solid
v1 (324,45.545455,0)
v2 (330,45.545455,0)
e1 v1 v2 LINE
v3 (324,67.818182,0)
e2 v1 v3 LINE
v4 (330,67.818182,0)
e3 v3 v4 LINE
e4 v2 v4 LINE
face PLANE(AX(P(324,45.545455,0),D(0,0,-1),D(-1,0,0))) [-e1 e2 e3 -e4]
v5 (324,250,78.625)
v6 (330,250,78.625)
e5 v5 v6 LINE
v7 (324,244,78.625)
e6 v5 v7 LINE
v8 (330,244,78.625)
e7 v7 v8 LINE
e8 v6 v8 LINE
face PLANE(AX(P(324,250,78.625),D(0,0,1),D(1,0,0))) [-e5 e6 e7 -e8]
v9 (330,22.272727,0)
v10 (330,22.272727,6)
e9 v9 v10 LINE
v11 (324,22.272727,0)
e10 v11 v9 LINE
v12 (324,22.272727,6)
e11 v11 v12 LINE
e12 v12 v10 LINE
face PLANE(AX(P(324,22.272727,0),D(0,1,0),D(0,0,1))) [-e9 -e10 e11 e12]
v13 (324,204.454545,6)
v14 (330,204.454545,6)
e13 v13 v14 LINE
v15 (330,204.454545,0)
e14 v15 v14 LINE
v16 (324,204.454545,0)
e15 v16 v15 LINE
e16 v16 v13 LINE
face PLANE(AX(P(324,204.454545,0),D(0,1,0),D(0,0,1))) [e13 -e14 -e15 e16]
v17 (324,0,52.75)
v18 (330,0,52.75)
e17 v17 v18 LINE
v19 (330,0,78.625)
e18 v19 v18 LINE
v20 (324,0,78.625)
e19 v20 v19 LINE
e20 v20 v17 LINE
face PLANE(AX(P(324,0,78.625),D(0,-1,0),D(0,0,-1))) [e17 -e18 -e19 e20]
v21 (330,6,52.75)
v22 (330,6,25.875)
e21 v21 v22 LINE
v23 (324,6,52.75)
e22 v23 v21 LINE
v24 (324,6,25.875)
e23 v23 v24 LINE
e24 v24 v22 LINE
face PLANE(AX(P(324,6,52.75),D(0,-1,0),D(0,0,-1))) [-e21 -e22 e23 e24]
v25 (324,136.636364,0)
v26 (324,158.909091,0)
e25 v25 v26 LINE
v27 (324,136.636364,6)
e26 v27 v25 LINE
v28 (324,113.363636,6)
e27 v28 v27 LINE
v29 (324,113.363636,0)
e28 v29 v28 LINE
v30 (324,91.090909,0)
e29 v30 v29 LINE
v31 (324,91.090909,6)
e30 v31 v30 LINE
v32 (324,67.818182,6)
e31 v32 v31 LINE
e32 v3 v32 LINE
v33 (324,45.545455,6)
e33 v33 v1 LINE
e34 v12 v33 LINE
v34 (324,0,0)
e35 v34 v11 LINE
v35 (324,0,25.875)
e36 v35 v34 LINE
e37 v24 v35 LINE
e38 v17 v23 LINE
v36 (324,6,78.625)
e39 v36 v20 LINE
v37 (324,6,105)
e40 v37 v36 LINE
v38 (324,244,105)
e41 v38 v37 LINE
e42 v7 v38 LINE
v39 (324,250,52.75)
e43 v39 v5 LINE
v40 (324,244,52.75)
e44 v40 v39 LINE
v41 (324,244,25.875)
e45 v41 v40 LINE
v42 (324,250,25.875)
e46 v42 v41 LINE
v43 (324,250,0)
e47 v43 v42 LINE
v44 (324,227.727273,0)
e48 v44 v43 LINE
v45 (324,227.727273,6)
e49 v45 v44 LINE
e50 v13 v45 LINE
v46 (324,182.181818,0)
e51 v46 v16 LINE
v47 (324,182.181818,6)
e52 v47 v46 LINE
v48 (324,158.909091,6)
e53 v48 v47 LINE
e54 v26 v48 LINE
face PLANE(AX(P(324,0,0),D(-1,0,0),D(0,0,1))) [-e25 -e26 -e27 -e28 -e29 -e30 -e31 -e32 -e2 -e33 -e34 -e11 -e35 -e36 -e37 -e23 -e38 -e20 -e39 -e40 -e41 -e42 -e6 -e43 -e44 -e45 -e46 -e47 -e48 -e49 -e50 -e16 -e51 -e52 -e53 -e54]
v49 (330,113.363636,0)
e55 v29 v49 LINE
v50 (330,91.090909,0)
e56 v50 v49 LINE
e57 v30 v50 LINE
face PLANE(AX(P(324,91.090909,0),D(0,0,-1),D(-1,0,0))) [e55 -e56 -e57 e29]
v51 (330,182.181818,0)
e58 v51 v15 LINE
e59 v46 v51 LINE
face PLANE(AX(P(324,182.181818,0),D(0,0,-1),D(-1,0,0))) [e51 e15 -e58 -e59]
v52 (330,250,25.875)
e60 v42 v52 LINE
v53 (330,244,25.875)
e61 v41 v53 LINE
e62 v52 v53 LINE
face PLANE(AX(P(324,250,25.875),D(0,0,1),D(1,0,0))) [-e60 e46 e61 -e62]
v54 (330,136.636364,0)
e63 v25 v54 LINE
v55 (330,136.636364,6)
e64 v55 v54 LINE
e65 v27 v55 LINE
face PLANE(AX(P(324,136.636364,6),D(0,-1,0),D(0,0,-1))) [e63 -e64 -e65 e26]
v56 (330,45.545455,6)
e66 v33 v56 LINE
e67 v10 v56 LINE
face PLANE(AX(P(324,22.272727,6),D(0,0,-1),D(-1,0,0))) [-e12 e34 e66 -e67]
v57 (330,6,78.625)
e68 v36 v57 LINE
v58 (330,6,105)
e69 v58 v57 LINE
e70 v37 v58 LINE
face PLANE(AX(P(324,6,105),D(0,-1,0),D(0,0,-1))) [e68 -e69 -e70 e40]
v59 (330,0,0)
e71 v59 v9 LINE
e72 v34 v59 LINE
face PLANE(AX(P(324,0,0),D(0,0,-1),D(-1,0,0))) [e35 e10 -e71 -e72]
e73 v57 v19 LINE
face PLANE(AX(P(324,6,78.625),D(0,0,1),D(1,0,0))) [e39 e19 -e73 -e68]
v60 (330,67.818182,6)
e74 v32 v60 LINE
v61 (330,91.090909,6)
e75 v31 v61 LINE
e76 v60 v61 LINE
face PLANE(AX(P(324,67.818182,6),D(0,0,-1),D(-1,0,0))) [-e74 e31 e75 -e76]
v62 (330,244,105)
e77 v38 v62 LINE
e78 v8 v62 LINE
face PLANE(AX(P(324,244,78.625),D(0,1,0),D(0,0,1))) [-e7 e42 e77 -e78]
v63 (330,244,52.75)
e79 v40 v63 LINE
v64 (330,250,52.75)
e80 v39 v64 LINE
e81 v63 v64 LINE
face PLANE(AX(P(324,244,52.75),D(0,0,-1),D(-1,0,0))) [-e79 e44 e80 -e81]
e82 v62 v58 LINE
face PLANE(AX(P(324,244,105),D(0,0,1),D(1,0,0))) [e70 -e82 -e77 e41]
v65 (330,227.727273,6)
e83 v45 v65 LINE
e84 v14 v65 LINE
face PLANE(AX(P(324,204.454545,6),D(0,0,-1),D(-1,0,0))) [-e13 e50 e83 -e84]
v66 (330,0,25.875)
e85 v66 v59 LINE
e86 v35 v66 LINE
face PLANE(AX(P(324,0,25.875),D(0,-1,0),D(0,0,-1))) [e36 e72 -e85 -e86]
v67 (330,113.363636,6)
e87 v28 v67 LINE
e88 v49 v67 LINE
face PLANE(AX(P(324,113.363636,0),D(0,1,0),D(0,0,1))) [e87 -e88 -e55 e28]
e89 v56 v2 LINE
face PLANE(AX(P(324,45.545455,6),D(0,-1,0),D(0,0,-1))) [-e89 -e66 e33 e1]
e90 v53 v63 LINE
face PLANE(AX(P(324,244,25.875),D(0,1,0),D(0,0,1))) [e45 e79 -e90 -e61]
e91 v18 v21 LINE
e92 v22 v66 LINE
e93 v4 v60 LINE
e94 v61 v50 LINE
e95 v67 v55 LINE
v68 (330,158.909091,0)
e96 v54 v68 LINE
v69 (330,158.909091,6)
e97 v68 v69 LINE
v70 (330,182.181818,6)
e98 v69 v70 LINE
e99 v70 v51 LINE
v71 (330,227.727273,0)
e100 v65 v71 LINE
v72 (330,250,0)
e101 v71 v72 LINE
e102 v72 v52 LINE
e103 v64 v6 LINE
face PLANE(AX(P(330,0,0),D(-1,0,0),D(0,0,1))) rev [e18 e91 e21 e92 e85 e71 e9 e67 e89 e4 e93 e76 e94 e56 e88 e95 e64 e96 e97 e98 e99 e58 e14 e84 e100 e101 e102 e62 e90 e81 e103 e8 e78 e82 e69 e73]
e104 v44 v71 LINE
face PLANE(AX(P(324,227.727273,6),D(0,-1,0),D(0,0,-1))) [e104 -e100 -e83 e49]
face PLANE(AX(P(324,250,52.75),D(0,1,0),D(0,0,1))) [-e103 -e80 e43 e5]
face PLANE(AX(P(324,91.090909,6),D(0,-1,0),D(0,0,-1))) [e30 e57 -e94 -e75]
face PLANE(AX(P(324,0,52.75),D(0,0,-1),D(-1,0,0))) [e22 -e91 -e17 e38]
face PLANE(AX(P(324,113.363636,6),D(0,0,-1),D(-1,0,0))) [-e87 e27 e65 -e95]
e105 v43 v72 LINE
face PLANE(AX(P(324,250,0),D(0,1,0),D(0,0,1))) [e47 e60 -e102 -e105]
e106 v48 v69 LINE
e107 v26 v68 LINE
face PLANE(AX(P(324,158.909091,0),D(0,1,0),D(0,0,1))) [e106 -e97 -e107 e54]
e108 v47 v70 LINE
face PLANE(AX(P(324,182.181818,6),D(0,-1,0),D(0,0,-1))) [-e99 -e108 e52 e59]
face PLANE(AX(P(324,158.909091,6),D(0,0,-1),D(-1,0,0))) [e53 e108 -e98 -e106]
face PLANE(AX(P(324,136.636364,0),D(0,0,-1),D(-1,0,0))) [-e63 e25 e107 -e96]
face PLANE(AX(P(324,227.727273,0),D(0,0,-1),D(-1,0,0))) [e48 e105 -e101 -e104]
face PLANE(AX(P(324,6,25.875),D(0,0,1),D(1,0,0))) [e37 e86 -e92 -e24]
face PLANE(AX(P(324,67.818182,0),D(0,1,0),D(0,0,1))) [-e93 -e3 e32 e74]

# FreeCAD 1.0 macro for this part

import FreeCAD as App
import Part
import Sketcher

V = App.Vector
Q = App.Units.Quantity

doc = App.newDocument("Part")
body = doc.addObject("PartDesign::Body", "Body")

# Sketch on YZ plane
sketch1 = body.newObject("Sketcher::SketchObject", "Sketch")
sketch1.AttachmentSupport = (doc.getObject("YZ_Plane"), [""])
sketch1.MapMode = "FlatFace"
sketch1.AttachmentOffset = App.Placement(V(0, 0, 330), App.Rotation())
sketch1.addGeometry([
    Part.LineSegment(V(244, 52.75, 0), V(250, 52.75, 0)),  # 0
    Part.LineSegment(V(250, 52.75, 0), V(250, 78.625, 0)),  # 1
    Part.LineSegment(V(250, 78.625, 0), V(244, 78.625, 0)),  # 2
    Part.LineSegment(V(244, 78.625, 0), V(244, 105, 0)),  # 3
    Part.LineSegment(V(244, 105, 0), V(6, 105, 0)),  # 4
    Part.LineSegment(V(6, 105, 0), V(6, 78.625, 0)),  # 5
    Part.LineSegment(V(6, 78.625, 0), V(0, 78.625, 0)),  # 6
    Part.LineSegment(V(0, 78.625, 0), V(0, 52.75, 0)),  # 7
    Part.LineSegment(V(0, 52.75, 0), V(6, 52.75, 0)),  # 8
    Part.LineSegment(V(6, 52.75, 0), V(6, 25.875, 0)),  # 9
    Part.LineSegment(V(6, 25.875, 0), V(0, 25.875, 0)),  # 10
    Part.LineSegment(V(0, 25.875, 0), V(0, 0, 0)),  # 11
    Part.LineSegment(V(0, 0, 0), V(22.272727, 0, 0)),  # 12
    Part.LineSegment(V(22.272727, 0, 0), V(22.272727, 6, 0)),  # 13
    Part.LineSegment(V(22.272727, 6, 0), V(45.545455, 6, 0)),  # 14
    Part.LineSegment(V(45.545455, 6, 0), V(45.545455, 0, 0)),  # 15
    Part.LineSegment(V(45.545455, 0, 0), V(67.818182, 0, 0)),  # 16
    Part.LineSegment(V(67.818182, 0, 0), V(67.818182, 6, 0)),  # 17
    Part.LineSegment(V(67.818182, 6, 0), V(91.090909, 6, 0)),  # 18
    Part.LineSegment(V(91.090909, 6, 0), V(91.090909, 0, 0)),  # 19
    Part.LineSegment(V(91.090909, 0, 0), V(113.363636, 0, 0)),  # 20
    Part.LineSegment(V(113.363636, 0, 0), V(113.363636, 6, 0)),  # 21
    Part.LineSegment(V(113.363636, 6, 0), V(136.636364, 6, 0)),  # 22
    Part.LineSegment(V(136.636364, 6, 0), V(136.636364, 0, 0)),  # 23
    Part.LineSegment(V(136.636364, 0, 0), V(158.909091, 0, 0)),  # 24
    Part.LineSegment(V(158.909091, 0, 0), V(158.909091, 6, 0)),  # 25
    Part.LineSegment(V(158.909091, 6, 0), V(182.181818, 6, 0)),  # 26
    Part.LineSegment(V(182.181818, 6, 0), V(182.181818, 0, 0)),  # 27
    Part.LineSegment(V(182.181818, 0, 0), V(204.454545, 0, 0)),  # 28
    Part.LineSegment(V(204.454545, 0, 0), V(204.454545, 6, 0)),  # 29
    Part.LineSegment(V(204.454545, 6, 0), V(227.727273, 6, 0)),  # 30
    Part.LineSegment(V(227.727273, 6, 0), V(227.727273, 0, 0)),  # 31
    Part.LineSegment(V(227.727273, 0, 0), V(250, 0, 0)),  # 32
    Part.LineSegment(V(250, 0, 0), V(250, 25.875, 0)),  # 33
    Part.LineSegment(V(250, 25.875, 0), V(244, 25.875, 0)),  # 34
    Part.LineSegment(V(244, 25.875, 0), V(244, 52.75, 0)),  # 35
], False)
sketch1.addConstraint([
    Sketcher.Constraint("Coincident", 0, 2, 1, 1),
    Sketcher.Constraint("Coincident", 1, 2, 2, 1),
    Sketcher.Constraint("Coincident", 2, 2, 3, 1),
    Sketcher.Constraint("Coincident", 3, 2, 4, 1),
    Sketcher.Constraint("Coincident", 4, 2, 5, 1),
    Sketcher.Constraint("Coincident", 5, 2, 6, 1),
    Sketcher.Constraint("Coincident", 6, 2, 7, 1),
    Sketcher.Constraint("Coincident", 7, 2, 8, 1),
    Sketcher.Constraint("Coincident", 8, 2, 9, 1),
    Sketcher.Constraint("Coincident", 9, 2, 10, 1),
    Sketcher.Constraint("Coincident", 10, 2, 11, 1),
    Sketcher.Constraint("Coincident", 11, 2, 12, 1),
    Sketcher.Constraint("Coincident", 12, 2, 13, 1),
    Sketcher.Constraint("Coincident", 13, 2, 14, 1),
    Sketcher.Constraint("Coincident", 14, 2, 15, 1),
    Sketcher.Constraint("Coincident", 15, 2, 16, 1),
    Sketcher.Constraint("Coincident", 16, 2, 17, 1),
    Sketcher.Constraint("Coincident", 17, 2, 18, 1),
    Sketcher.Constraint("Coincident", 18, 2, 19, 1),
    Sketcher.Constraint("Coincident", 19, 2, 20, 1),
    Sketcher.Constraint("Coincident", 20, 2, 21, 1),
    Sketcher.Constraint("Coincident", 21, 2, 22, 1),
    Sketcher.Constraint("Coincident", 22, 2, 23, 1),
    Sketcher.Constraint("Coincident", 23, 2, 24, 1),
    Sketcher.Constraint("Coincident", 24, 2, 25, 1),
    Sketcher.Constraint("Coincident", 25, 2, 26, 1),
    Sketcher.Constraint("Coincident", 26, 2, 27, 1),
    Sketcher.Constraint("Coincident", 27, 2, 28, 1),
    Sketcher.Constraint("Coincident", 28, 2, 29, 1),
    Sketcher.Constraint("Coincident", 29, 2, 30, 1),
    Sketcher.Constraint("Coincident", 30, 2, 31, 1),
    Sketcher.Constraint("Coincident", 31, 2, 32, 1),
    Sketcher.Constraint("Coincident", 32, 2, 33, 1),
    Sketcher.Constraint("Coincident", 33, 2, 34, 1),
    Sketcher.Constraint("Coincident", 34, 2, 35, 1),
    Sketcher.Constraint("Coincident", 35, 2, 0, 1),
    Sketcher.Constraint("Horizontal", 0),
    Sketcher.Constraint("Vertical", 1),
    Sketcher.Constraint("Horizontal", 2),
    Sketcher.Constraint("Vertical", 3),
    Sketcher.Constraint("Horizontal", 4),
    Sketcher.Constraint("Vertical", 5),
    Sketcher.Constraint("Horizontal", 6),
    Sketcher.Constraint("Vertical", 7),
    Sketcher.Constraint("Horizontal", 8),
    Sketcher.Constraint("Vertical", 9),
    Sketcher.Constraint("Horizontal", 10),
    Sketcher.Constraint("Vertical", 11),
    Sketcher.Constraint("Horizontal", 12),
    Sketcher.Constraint("Vertical", 13),
    Sketcher.Constraint("Horizontal", 14),
    Sketcher.Constraint("Vertical", 15),
    Sketcher.Constraint("Horizontal", 16),
    Sketcher.Constraint("Vertical", 17),
    Sketcher.Constraint("Horizontal", 18),
    Sketcher.Constraint("Vertical", 19),
    Sketcher.Constraint("Horizontal", 20),
    Sketcher.Constraint("Vertical", 21),
    Sketcher.Constraint("Horizontal", 22),
    Sketcher.Constraint("Vertical", 23),
    Sketcher.Constraint("Horizontal", 24),
    Sketcher.Constraint("Vertical", 25),
    Sketcher.Constraint("Horizontal", 26),
    Sketcher.Constraint("Vertical", 27),
    Sketcher.Constraint("Horizontal", 28),
    Sketcher.Constraint("Vertical", 29),
    Sketcher.Constraint("Horizontal", 30),
    Sketcher.Constraint("Vertical", 31),
    Sketcher.Constraint("Horizontal", 32),
    Sketcher.Constraint("Vertical", 33),
    Sketcher.Constraint("Horizontal", 34),
    Sketcher.Constraint("Vertical", 35),
    Sketcher.Constraint("Coincident", 11, 2, -1, 1),
    Sketcher.Constraint("PointOnObject", 6, 2, -2),
    Sketcher.Constraint("PointOnObject", 15, 2, -1),
    Sketcher.Constraint("PointOnObject", 19, 2, -1),
    Sketcher.Constraint("PointOnObject", 23, 2, -1),
    Sketcher.Constraint("PointOnObject", 27, 2, -1),
    Sketcher.Constraint("PointOnObject", 31, 2, -1),
    Sketcher.Constraint("Horizontal", 2, 2, 5, 2),
    Sketcher.Constraint("Horizontal", 0, 2, 7, 2),
    Sketcher.Constraint("Horizontal", 14, 2, 17, 2),
    Sketcher.Constraint("Horizontal", 18, 2, 21, 2),
    Sketcher.Constraint("Horizontal", 22, 2, 25, 2),
    Sketcher.Constraint("Horizontal", 26, 2, 29, 2),
    Sketcher.Constraint("Horizontal", 10, 2, 33, 2),
    Sketcher.Constraint("Vertical", 5, 2, 8, 2),
    Sketcher.Constraint("Vertical", 1, 2, 32, 2),
    Sketcher.Constraint("Vertical", 3, 2, 34, 2),
    Sketcher.Constraint("Equal", 2, 6),
    Sketcher.Constraint("Equal", 12, 16),
    Sketcher.Constraint("Equal", 14, 18),
    Sketcher.Constraint("Equal", 16, 20),
    Sketcher.Constraint("Equal", 18, 22),
    Sketcher.Constraint("Equal", 20, 24),
    Sketcher.Constraint("Equal", 22, 26),
    Sketcher.Constraint("Equal", 24, 28),
    Sketcher.Constraint("Equal", 26, 30),
    Sketcher.Constraint("Equal", 28, 32),
    Sketcher.Constraint("Equal", 7, 11),
    Sketcher.Constraint("Equal", 34, 13),
    Sketcher.Constraint("DistanceX", 0, 1, 0, 2, Q("6 mm")),
    Sketcher.Constraint("DistanceX", 4, 2, 4, 1, Q("238 mm")),
    Sketcher.Constraint("DistanceY", -1, 1, 3, 2, Q("105 mm")),
    Sketcher.Constraint("DistanceY", 1, 1, 1, 2, Q("25.875 mm")),
    Sketcher.Constraint("DistanceY", 3, 1, 3, 2, Q("26.375 mm")),
    Sketcher.Constraint("DistanceX", 12, 1, 12, 2, Q("22.272727 mm")),
])
pad1 = body.newObject("PartDesign::Pad", "Pad")
pad1.Profile = sketch1
pad1.Length = 6
pad1.Reversed = True

doc.recompute()
